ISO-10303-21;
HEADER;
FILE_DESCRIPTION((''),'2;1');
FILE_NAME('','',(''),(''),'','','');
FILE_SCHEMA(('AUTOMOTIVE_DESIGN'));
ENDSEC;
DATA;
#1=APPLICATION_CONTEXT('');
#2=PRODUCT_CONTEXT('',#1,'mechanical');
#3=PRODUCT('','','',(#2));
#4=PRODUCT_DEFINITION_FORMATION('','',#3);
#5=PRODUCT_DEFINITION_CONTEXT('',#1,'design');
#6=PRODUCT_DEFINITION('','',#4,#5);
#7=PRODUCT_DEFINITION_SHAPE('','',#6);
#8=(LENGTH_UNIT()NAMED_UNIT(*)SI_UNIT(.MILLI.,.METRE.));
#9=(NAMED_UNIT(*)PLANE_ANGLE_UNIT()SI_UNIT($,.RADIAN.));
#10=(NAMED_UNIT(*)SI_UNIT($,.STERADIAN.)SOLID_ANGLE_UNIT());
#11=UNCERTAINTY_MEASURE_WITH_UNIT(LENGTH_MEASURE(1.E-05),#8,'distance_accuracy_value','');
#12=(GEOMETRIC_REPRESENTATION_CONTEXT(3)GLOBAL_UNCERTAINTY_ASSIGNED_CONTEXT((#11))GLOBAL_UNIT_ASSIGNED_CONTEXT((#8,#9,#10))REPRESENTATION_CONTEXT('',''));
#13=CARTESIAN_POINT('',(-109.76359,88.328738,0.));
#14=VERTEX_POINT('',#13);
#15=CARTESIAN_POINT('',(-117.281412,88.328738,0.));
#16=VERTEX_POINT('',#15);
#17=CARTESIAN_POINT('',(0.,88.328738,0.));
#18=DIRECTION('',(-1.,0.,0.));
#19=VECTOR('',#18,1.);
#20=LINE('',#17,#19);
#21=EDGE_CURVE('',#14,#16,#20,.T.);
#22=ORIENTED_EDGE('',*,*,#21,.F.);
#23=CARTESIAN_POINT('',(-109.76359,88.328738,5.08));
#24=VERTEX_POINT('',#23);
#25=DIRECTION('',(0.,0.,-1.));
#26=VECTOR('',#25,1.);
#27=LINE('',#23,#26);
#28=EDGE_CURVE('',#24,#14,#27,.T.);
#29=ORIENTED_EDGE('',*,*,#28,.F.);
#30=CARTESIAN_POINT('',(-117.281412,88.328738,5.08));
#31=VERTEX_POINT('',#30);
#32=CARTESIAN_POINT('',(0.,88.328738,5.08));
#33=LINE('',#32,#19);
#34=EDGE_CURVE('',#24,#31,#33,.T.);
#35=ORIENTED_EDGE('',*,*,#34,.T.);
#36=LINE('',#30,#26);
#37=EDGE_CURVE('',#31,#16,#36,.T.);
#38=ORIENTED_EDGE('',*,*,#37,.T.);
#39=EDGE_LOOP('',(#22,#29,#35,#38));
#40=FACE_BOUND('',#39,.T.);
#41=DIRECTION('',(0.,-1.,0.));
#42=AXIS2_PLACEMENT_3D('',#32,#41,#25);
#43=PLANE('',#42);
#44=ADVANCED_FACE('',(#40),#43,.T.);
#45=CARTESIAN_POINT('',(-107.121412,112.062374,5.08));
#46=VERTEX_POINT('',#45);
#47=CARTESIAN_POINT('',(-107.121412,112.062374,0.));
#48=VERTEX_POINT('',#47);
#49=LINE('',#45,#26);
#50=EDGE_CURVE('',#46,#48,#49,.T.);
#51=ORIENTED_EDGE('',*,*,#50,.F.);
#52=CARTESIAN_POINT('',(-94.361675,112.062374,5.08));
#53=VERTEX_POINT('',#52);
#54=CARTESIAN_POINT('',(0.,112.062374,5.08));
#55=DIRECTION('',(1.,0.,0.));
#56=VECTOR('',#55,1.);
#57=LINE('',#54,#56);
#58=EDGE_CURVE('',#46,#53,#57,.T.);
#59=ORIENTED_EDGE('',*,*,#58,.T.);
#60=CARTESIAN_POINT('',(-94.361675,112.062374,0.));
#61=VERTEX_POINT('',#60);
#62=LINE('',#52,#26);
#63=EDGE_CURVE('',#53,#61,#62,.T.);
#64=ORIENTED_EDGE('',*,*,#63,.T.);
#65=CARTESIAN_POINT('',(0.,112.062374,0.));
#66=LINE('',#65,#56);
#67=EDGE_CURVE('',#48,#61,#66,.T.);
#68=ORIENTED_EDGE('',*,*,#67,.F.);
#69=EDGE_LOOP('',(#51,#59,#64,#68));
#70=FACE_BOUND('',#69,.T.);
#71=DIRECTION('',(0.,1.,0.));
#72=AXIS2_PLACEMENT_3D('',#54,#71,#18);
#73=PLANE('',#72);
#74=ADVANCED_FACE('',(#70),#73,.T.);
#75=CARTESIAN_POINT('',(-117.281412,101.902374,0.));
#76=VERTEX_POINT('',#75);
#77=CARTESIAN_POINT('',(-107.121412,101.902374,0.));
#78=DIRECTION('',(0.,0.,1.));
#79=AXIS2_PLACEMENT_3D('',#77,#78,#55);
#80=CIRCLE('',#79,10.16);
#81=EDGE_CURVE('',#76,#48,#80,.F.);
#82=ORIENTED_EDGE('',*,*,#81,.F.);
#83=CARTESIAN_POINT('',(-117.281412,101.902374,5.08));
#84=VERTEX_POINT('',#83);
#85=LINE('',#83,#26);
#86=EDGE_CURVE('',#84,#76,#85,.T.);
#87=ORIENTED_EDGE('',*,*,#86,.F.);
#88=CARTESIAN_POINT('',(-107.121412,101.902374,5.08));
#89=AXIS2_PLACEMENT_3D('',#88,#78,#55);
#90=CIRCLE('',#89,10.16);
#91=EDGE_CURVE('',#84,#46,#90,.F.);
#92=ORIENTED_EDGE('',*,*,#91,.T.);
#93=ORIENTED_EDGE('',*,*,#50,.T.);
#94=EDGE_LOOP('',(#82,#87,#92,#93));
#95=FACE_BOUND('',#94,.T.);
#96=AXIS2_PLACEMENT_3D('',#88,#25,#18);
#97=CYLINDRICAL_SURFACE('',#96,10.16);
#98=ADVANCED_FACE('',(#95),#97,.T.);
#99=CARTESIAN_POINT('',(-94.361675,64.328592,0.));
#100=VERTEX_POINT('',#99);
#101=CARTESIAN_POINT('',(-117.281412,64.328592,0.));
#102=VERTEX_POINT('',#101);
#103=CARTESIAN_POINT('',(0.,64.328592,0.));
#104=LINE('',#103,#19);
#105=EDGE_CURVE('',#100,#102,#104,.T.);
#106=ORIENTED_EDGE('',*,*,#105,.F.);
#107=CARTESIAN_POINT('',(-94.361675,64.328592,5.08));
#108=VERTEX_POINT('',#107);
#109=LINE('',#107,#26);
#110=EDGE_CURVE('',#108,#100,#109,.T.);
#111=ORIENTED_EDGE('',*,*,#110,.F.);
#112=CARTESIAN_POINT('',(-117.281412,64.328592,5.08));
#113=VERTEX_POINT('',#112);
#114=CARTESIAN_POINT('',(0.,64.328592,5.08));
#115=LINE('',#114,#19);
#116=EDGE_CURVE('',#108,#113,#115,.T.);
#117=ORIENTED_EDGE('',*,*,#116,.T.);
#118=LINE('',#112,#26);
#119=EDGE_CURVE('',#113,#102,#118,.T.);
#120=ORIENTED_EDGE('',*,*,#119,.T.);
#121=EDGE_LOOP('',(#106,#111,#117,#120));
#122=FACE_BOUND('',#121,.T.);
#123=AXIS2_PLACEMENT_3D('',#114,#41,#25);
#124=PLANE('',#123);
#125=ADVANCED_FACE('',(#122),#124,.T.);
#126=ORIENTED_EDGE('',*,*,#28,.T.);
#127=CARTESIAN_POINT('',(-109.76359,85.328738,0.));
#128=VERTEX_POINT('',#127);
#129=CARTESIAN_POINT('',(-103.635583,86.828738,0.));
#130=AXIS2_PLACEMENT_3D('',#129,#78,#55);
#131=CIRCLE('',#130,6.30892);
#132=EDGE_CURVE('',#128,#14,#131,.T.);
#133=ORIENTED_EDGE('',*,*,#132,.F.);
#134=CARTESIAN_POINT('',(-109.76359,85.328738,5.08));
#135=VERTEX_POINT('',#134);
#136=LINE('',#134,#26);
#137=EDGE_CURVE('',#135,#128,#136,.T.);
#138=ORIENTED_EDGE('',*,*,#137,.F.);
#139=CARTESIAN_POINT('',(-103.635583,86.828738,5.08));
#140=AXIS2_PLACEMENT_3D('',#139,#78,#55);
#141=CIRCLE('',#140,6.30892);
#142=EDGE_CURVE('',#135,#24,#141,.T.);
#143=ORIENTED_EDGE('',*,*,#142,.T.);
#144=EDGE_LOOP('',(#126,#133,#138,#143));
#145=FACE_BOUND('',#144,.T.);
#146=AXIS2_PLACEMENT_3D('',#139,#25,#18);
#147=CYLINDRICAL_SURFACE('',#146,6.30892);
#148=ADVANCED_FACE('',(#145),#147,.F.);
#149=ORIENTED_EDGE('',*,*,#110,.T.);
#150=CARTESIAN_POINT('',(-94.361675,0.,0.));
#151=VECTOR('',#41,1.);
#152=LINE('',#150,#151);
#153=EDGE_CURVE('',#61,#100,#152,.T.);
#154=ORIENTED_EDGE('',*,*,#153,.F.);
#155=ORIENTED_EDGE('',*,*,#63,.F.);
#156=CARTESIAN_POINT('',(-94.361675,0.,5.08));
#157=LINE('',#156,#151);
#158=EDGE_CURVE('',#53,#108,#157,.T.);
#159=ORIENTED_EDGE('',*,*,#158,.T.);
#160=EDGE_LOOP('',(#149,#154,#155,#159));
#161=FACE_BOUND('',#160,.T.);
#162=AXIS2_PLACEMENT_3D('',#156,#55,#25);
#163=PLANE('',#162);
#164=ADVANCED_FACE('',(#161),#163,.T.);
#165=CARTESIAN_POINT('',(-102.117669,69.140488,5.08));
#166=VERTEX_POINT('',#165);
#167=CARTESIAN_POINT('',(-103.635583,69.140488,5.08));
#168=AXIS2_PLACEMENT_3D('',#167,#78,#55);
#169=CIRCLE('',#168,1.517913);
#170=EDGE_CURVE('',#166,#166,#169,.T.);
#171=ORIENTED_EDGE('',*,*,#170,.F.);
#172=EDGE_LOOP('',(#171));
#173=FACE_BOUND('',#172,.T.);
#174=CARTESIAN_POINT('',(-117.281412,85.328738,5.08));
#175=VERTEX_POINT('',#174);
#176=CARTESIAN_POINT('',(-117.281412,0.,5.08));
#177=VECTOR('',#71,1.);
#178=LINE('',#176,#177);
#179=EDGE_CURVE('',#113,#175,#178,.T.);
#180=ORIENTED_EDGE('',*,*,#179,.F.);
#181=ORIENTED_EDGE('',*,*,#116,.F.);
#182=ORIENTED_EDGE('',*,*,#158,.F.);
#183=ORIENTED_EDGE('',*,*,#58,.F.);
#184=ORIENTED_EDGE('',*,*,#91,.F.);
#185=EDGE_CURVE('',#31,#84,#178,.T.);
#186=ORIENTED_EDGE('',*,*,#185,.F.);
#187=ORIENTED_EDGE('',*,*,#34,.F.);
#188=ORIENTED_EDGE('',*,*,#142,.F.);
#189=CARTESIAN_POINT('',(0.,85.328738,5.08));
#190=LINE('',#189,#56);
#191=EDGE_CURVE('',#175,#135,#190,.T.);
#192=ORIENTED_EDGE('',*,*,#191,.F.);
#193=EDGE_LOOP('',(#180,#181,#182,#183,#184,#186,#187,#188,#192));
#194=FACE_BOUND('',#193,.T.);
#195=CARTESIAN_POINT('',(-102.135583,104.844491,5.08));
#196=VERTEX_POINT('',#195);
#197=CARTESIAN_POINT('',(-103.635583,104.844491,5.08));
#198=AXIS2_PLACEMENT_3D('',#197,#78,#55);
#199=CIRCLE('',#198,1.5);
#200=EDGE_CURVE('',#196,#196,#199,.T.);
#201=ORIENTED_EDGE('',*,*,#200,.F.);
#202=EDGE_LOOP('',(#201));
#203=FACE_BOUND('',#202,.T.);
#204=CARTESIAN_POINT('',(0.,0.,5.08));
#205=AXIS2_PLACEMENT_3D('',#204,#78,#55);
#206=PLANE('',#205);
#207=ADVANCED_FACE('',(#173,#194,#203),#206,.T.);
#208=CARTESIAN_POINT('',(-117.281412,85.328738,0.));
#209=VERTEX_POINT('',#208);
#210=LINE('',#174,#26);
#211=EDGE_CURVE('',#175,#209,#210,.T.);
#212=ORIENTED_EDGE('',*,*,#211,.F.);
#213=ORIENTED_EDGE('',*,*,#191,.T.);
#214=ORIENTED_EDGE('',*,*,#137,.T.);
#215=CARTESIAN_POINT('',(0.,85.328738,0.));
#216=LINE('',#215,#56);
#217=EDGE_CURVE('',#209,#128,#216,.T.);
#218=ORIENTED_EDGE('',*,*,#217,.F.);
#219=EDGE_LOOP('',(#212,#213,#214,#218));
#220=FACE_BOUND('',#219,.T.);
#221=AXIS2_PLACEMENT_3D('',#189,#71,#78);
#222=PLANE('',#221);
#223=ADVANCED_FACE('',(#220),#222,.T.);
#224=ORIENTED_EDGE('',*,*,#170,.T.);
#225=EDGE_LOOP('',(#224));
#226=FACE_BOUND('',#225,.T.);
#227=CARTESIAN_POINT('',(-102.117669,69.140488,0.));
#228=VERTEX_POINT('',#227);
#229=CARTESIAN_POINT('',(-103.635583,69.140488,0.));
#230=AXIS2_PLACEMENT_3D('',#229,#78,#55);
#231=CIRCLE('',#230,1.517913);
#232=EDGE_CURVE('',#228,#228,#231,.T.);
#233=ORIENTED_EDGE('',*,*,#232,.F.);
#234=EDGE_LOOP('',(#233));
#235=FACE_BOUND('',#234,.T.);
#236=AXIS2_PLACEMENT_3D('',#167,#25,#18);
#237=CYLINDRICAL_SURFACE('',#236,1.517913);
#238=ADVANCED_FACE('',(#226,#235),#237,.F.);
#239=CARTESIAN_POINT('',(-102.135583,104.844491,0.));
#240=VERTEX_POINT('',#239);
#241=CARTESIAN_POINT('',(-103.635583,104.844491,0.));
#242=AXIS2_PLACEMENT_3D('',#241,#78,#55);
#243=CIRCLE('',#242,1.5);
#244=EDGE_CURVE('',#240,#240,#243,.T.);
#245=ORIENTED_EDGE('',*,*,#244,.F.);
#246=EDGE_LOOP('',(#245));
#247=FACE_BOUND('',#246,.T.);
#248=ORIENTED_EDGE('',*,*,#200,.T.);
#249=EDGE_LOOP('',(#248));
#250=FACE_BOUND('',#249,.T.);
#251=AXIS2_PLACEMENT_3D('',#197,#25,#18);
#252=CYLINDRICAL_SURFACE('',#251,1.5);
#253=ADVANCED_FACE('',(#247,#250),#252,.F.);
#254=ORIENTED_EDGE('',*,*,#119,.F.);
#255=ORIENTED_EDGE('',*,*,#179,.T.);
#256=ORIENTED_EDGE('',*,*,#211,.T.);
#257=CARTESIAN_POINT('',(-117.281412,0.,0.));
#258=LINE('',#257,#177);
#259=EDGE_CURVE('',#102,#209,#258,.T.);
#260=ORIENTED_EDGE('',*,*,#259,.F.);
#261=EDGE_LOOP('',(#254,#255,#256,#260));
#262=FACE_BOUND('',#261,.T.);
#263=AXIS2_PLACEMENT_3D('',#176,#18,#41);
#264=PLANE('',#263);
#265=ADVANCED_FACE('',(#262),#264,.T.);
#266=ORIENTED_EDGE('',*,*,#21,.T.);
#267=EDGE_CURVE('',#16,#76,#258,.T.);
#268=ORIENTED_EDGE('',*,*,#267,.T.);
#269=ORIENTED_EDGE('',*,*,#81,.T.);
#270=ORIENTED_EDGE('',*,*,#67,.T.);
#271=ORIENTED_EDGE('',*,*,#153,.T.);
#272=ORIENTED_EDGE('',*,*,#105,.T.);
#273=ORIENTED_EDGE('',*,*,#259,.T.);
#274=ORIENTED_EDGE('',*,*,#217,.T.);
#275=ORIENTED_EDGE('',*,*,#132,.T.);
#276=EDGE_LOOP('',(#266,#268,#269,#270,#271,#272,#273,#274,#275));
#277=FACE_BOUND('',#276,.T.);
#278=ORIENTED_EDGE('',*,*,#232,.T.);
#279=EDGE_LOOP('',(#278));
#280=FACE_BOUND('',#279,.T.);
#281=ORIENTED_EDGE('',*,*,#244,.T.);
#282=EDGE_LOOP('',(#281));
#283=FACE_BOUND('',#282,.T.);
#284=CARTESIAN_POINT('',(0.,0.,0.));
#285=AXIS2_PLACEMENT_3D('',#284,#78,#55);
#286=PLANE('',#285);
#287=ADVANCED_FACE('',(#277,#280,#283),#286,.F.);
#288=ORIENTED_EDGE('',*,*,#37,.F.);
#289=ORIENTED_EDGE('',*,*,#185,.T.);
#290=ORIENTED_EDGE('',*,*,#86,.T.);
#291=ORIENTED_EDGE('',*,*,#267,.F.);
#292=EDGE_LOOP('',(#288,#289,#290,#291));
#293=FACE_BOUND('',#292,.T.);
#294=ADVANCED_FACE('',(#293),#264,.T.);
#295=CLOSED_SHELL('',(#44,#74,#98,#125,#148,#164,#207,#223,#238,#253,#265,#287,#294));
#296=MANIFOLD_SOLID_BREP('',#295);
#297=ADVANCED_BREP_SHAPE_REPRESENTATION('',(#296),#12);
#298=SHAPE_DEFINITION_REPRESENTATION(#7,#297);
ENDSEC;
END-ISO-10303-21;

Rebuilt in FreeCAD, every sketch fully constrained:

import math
import FreeCAD as App
import Part
import Sketcher

V = App.Vector
Q = App.Units.Quantity

doc = App.newDocument("Part")
body = doc.addObject("PartDesign::Body", "Body")

# Sketch on XY plane
sketch1 = body.newObject("Sketcher::SketchObject", "Sketch")
sketch1.AttachmentSupport = (doc.getObject("XY_Plane"), [""])
sketch1.MapMode = "FlatFace"
sketch1.addGeometry(Part.ArcOfCircle(Part.Circle(V(-103.6, 86.8, 0), V(0, 0, 1), 6.3), math.radians(-166), math.radians(166)), False)
sketch1.addGeometry(Part.LineSegment(V(-109.8, 85.3, 0), V(-117.3, 85.3, 0)), False)
sketch1.addGeometry(Part.LineSegment(V(-117.3, 85.3, 0), V(-117.3, 64.3, 0)), False)
sketch1.addGeometry(Part.LineSegment(V(-117.3, 64.3, 0), V(-94.4, 64.3, 0)), False)
sketch1.addGeometry(Part.LineSegment(V(-94.4, 64.3, 0), V(-94.4, 112.1, 0)), False)
sketch1.addGeometry(Part.LineSegment(V(-94.4, 112.1, 0), V(-107.1, 112.1, 0)), False)
sketch1.addGeometry(Part.ArcOfCircle(Part.Circle(V(-107.1, 101.9, 0), V(0, 0, 1), 10.2), math.radians(90), math.radians(180)), False)
sketch1.addGeometry(Part.LineSegment(V(-117.3, 101.9, 0), V(-117.3, 88.3, 0)), False)
sketch1.addGeometry(Part.LineSegment(V(-117.3, 88.3, 0), V(-109.8, 88.3, 0)), False)
sketch1.addGeometry(Part.Circle(V(-103.6, 104.8, 0), V(0, 0, 1), 1.5), False)
sketch1.addGeometry(Part.Circle(V(-103.6, 69.1, 0), V(0, 0, 1), 1.5), False)
sketch1.addConstraint(Sketcher.Constraint("Coincident", 0, 1, 1, 1))
sketch1.addConstraint(Sketcher.Constraint("Coincident", 1, 2, 2, 1))
sketch1.addConstraint(Sketcher.Constraint("Coincident", 2, 2, 3, 1))
sketch1.addConstraint(Sketcher.Constraint("Coincident", 3, 2, 4, 1))
sketch1.addConstraint(Sketcher.Constraint("Coincident", 4, 2, 5, 1))
sketch1.addConstraint(Sketcher.Constraint("Tangent", 5, 2, 6, 1))
sketch1.addConstraint(Sketcher.Constraint("Tangent", 6, 2, 7, 1))
sketch1.addConstraint(Sketcher.Constraint("Coincident", 7, 2, 8, 1))
sketch1.addConstraint(Sketcher.Constraint("Coincident", 8, 2, 0, 2))
sketch1.addConstraint(Sketcher.Constraint("Horizontal", 1))
sketch1.addConstraint(Sketcher.Constraint("Vertical", 2))
sketch1.addConstraint(Sketcher.Constraint("Horizontal", 3))
sketch1.addConstraint(Sketcher.Constraint("Vertical", 4))
sketch1.addConstraint(Sketcher.Constraint("Horizontal", 5))
sketch1.addConstraint(Sketcher.Constraint("Vertical", 7))
sketch1.addConstraint(Sketcher.Constraint("Horizontal", 8))
sketch1.addConstraint(Sketcher.Constraint("Vertical", 0, 3, 9, 3))
sketch1.addConstraint(Sketcher.Constraint("Vertical", 9, 3, 10, 3))
sketch1.addConstraint(Sketcher.Constraint("Vertical", 2, 2, 6, 2))
sketch1.addConstraint(Sketcher.Constraint("Vertical", 0, 1, 8, 2))
sketch1.addConstraint(Sketcher.Constraint("Radius", 6, Q("0.4 in")))
sketch1.addConstraint(Sketcher.Constraint("Diameter", 9, Q("3 mm")))
sketch1.addConstraint(Sketcher.Constraint("Radius", 0, Q("6.30892 mm")))
sketch1.addConstraint(Sketcher.Constraint("Diameter", 10, Q("3.035827 mm")))
sketch1.addConstraint(Sketcher.Constraint("DistanceY", 4, 1, 4, 2, Q("47.733782 mm")))
sketch1.addConstraint(Sketcher.Constraint("DistanceY", 0, 1, 0, 3, Q("1.5 mm")))
sketch1.addConstraint(Sketcher.Constraint("DistanceX", 1, 2, 1, 1, Q("7.517822 mm")))
sketch1.addConstraint(Sketcher.Constraint("DistanceX", 3, 1, 3, 2, Q("22.919738 mm")))
sketch1.addConstraint(Sketcher.Constraint("DistanceY", 2, 2, 2, 1, Q("21.000146 mm")))
sketch1.addConstraint(Sketcher.Constraint("DistanceY", -1, 1, 0, 3, Q("86.828738 mm")))
sketch1.addConstraint(Sketcher.Constraint("DistanceY", -1, 1, 9, 3, Q("104.844491 mm")))
sketch1.addConstraint(Sketcher.Constraint("DistanceX", 0, 1, -1, 1, Q("109.76359 mm")))
sketch1.addConstraint(Sketcher.Constraint("DistanceY", 10, 3, 0, 3, Q("17.68825 mm")))
pad1 = body.newObject("PartDesign::Pad", "Pad")
pad1.Profile = sketch1
pad1.Length = Q("0.2 in")

doc.recompute()
